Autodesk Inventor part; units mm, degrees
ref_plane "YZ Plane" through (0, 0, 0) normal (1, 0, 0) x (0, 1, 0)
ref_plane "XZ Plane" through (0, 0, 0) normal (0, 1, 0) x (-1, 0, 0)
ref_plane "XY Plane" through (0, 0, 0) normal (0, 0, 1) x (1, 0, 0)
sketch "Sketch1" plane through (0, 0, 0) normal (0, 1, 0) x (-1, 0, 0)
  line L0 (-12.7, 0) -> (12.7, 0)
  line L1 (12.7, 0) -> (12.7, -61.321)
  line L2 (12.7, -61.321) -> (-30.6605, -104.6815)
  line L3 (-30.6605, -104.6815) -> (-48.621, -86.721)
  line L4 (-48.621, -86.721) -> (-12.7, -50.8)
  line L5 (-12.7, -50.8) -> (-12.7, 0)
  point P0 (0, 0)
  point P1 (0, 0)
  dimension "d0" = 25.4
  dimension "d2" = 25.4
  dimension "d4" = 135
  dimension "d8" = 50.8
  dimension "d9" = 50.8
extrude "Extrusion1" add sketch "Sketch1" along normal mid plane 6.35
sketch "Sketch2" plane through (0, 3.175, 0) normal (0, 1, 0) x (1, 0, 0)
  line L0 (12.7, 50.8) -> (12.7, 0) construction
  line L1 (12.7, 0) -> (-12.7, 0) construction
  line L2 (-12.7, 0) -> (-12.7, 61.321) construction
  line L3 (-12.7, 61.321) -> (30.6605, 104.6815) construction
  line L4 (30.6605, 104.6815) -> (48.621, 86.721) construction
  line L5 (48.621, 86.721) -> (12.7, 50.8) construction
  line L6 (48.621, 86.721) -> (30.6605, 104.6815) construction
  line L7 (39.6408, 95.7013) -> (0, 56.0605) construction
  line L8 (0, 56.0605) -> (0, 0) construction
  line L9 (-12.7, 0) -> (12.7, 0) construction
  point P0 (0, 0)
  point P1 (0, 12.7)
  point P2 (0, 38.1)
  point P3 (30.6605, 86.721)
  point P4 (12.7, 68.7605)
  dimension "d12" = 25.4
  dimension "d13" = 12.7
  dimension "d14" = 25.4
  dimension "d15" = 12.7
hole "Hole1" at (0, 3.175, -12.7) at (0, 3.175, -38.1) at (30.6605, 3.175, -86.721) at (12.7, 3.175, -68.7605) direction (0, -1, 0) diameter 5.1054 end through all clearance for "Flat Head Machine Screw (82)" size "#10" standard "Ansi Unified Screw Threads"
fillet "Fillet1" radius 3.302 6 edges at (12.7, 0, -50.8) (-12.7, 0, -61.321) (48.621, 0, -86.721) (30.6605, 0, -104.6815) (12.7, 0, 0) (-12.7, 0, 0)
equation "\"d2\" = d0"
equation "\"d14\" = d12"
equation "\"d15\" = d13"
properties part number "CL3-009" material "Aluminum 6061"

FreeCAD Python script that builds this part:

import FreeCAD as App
import Part
import Sketcher

V = App.Vector
Q = App.Units.Quantity


def edges_at(feature, points):
    """Names of the edges that pass closest to the given points."""
    edges = feature.Shape.Edges
    near = lambda p: min(range(len(edges)), key=lambda i: edges[i].distToShape(Part.Vertex(*p))[0])
    return sorted({f"Edge{near(p) + 1}" for p in points})

doc = App.newDocument("Part")
body = doc.addObject("PartDesign::Body", "Body")

# Sketch on XZ plane
sketch1 = doc.addObject("Sketcher::SketchObject", "Sketch")
body.addObject(sketch1)
sketch1.AttachmentSupport = (doc.XZ_Plane, [""])
sketch1.MapMode = "FlatFace"
sketch1.addGeometry([
    Part.LineSegment(V(-13, 0, 0), V(13, 0, 0)),  # 0
    Part.LineSegment(V(13, 0, 0), V(13, -51, 0)),  # 1
    Part.LineSegment(V(13, -51, 0), V(49, -87, 0)),  # 2
    Part.LineSegment(V(49, -87, 0), V(31, -105, 0)),  # 3
    Part.LineSegment(V(31, -105, 0), V(-13, -61, 0)),  # 4
    Part.LineSegment(V(-13, -61, 0), V(-13, 0, 0)),  # 5
], False)
sketch1.addConstraint([
    Sketcher.Constraint("Coincident", 0, 2, 1, 1),
    Sketcher.Constraint("Coincident", 1, 2, 2, 1),
    Sketcher.Constraint("Coincident", 2, 2, 3, 1),
    Sketcher.Constraint("Coincident", 3, 2, 4, 1),
    Sketcher.Constraint("Coincident", 4, 2, 5, 1),
    Sketcher.Constraint("Coincident", 5, 2, 0, 1),
    Sketcher.Constraint("Horizontal", 0),
    Sketcher.Constraint("Vertical", 1),
    Sketcher.Constraint("Vertical", 5),
    Sketcher.Constraint("Symmetric", 0, 2, 5, 2, -1, 1),
    Sketcher.Constraint("Perpendicular", 2, 3),
    Sketcher.Constraint("Perpendicular", 3, 4),
    Sketcher.Constraint("DistanceX", 0, 1, 0, 2, Q("1 in")),
    Sketcher.Constraint("DistanceY", 1, 2, 1, 1, Q("2 in")),
    Sketcher.Constraint("Distance", 2, Q("2 in")),
    Sketcher.Constraint("Distance", 3, Q("1 in")),
    Sketcher.Constraint("Angle", 3, Q("-135 deg")),
])
pad1 = doc.addObject("PartDesign::Pad", "Pad")
body.addObject(pad1)
pad1.Profile = sketch1
pad1.Length = Q("0.25 in")
pad1.Midplane = True

# Sketch on XZ plane
sketch2 = doc.addObject("Sketcher::SketchObject", "Sketch001")
body.addObject(sketch2)
sketch2.AttachmentSupport = (doc.XZ_Plane, [""])
sketch2.MapMode = "FlatFace"
sketch2.AttachmentOffset = App.Placement(V(0, 0, -0.125 * 25.4), App.Rotation())
sketch2.addGeometry([
    Part.Circle(V(0, -12.7, 0), V(0, 0, 1), 2.6),
    Part.Circle(V(0, -38.1, 0), V(0, 0, 1), 2.6),
    Part.Circle(V(30.7, -86.7, 0), V(0, 0, 1), 2.6),
    Part.Circle(V(12.7, -68.8, 0), V(0, 0, 1), 2.6),
], False)
sketch2.addConstraint([
    Sketcher.Constraint("Equal", 0, 1),
    Sketcher.Constraint("Equal", 1, 2),
    Sketcher.Constraint("Equal", 2, 3),
    Sketcher.Constraint("PointOnObject", 0, 3, -2),
    Sketcher.Constraint("PointOnObject", 1, 3, -2),
    Sketcher.Constraint("Diameter", 0, Q("0.201 in")),
    Sketcher.Constraint("DistanceY", 1, 3, 0, 3, Q("1 in")),
    Sketcher.Constraint("DistanceY", 0, 3, -1, 1, Q("0.5 in")),
    Sketcher.Constraint("DistanceX", -1, 1, 3, 3, Q("0.5 in")),
    Sketcher.Constraint("DistanceX", -1, 1, 2, 3, Q("1.2071 in")),
    Sketcher.Constraint("DistanceY", 3, 3, -1, 1, Q("2.7071 in")),
    Sketcher.Constraint("DistanceY", 2, 3, 3, 3, Q("0.7071 in")),
])
doc.recompute()
hole = doc.addObject("PartDesign::Hole", "Hole")
body.addObject(hole)
hole.Profile = sketch2
hole.ThreadType = "None"
hole.Diameter = Q("0.201 in")
hole.DepthType = "ThroughAll"
hole.Reversed = True
doc.recompute()

fillet = doc.addObject("PartDesign::Fillet", "Fillet")
body.addObject(fillet)
fillet.Base = (hole, edges_at(hole, [
    (12.7, 0, -50.8),
    (-12.7, 0, -61.321),
    (48.621, 0, -86.721),
    (30.66, 0, -104.681),
    (12.7, 0, 0),
    (-12.7, 0, 0),
]))
fillet.Radius = Q("0.13 in")

doc.recompute()
